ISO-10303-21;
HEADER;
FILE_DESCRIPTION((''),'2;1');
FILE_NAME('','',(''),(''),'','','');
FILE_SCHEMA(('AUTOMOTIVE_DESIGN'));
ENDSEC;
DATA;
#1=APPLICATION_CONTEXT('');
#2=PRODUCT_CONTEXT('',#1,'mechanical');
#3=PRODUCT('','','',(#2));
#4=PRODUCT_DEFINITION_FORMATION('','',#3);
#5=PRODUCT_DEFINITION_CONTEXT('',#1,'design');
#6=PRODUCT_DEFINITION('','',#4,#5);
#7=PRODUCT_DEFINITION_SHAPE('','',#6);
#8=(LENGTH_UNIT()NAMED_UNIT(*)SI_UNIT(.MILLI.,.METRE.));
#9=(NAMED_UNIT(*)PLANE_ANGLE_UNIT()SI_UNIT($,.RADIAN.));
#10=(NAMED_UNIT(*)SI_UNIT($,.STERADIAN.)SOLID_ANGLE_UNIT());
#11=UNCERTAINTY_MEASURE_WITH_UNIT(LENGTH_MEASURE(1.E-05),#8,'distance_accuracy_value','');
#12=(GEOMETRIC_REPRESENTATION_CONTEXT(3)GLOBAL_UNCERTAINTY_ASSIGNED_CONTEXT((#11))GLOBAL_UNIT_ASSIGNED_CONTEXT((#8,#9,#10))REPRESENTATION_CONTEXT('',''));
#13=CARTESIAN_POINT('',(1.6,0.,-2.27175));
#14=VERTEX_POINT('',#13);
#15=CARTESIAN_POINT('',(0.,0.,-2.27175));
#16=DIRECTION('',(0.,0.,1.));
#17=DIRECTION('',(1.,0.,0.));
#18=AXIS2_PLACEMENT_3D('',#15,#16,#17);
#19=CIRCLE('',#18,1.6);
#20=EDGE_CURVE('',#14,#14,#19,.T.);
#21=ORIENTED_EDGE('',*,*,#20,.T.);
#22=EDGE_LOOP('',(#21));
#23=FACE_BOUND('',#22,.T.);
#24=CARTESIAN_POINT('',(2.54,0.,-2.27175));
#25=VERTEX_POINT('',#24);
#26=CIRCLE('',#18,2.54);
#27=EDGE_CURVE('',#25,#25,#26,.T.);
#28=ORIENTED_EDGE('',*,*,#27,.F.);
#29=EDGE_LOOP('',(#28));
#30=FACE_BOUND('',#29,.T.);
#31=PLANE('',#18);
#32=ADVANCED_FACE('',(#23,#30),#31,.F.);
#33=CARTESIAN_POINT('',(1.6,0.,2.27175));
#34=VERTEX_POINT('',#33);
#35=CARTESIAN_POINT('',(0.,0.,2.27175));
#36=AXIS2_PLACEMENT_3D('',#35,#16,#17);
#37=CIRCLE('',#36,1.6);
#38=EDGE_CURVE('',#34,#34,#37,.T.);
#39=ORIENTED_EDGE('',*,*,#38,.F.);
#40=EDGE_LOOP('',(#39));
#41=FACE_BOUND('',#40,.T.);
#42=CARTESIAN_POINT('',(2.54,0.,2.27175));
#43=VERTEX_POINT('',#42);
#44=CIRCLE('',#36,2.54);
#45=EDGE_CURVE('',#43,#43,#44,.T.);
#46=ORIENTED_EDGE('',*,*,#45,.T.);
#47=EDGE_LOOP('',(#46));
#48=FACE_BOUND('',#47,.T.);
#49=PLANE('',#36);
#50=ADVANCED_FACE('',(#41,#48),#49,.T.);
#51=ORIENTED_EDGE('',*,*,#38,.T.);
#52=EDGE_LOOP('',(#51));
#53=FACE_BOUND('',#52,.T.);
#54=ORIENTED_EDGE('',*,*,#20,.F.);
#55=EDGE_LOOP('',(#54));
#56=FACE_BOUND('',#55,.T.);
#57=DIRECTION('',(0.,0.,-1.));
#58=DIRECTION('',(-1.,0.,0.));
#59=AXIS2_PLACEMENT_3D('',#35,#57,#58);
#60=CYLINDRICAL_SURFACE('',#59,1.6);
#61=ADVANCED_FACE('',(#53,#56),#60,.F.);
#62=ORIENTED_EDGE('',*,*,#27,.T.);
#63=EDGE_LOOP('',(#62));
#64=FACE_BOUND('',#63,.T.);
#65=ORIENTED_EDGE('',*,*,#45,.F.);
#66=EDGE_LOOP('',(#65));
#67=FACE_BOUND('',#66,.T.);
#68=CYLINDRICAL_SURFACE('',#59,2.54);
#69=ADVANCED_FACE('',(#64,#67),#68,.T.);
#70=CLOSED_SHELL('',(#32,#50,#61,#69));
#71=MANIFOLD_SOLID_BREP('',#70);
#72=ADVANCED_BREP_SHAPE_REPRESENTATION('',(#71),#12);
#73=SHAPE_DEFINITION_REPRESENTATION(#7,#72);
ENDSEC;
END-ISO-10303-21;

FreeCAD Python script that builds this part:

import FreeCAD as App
import Part
import Sketcher

doc = App.newDocument("Part")
body = doc.addObject("PartDesign::Body", "Body")

# Sketch on XY plane
sketch1 = doc.addObject("Sketcher::SketchObject", "Sketch")
body.addObject(sketch1)
sketch1.AttachmentSupport = (doc.XY_Plane, [""])
sketch1.MapMode = "FlatFace"
sketch1.addGeometry(Part.Circle(App.Vector(0, 0, 0), App.Vector(0, 0, 1), 2.54), False)
sketch1.addGeometry(Part.Circle(App.Vector(0, 0, 0), App.Vector(0, 0, 1), 1.6), False)
sketch1.addConstraint(Sketcher.Constraint("Coincident", 0, 3, -1, 1))
sketch1.addConstraint(Sketcher.Constraint("Coincident", 1, 3, -1, 1))
sketch1.addConstraint(Sketcher.Constraint("Diameter", 1, 3.2))
sketch1.addConstraint(Sketcher.Constraint("Diameter", 0, 5.08))
pad1 = doc.addObject("PartDesign::Pad", "Pad")
body.addObject(pad1)
pad1.Profile = sketch1
pad1.Length = 4.5435
pad1.Midplane = True

doc.recompute()
